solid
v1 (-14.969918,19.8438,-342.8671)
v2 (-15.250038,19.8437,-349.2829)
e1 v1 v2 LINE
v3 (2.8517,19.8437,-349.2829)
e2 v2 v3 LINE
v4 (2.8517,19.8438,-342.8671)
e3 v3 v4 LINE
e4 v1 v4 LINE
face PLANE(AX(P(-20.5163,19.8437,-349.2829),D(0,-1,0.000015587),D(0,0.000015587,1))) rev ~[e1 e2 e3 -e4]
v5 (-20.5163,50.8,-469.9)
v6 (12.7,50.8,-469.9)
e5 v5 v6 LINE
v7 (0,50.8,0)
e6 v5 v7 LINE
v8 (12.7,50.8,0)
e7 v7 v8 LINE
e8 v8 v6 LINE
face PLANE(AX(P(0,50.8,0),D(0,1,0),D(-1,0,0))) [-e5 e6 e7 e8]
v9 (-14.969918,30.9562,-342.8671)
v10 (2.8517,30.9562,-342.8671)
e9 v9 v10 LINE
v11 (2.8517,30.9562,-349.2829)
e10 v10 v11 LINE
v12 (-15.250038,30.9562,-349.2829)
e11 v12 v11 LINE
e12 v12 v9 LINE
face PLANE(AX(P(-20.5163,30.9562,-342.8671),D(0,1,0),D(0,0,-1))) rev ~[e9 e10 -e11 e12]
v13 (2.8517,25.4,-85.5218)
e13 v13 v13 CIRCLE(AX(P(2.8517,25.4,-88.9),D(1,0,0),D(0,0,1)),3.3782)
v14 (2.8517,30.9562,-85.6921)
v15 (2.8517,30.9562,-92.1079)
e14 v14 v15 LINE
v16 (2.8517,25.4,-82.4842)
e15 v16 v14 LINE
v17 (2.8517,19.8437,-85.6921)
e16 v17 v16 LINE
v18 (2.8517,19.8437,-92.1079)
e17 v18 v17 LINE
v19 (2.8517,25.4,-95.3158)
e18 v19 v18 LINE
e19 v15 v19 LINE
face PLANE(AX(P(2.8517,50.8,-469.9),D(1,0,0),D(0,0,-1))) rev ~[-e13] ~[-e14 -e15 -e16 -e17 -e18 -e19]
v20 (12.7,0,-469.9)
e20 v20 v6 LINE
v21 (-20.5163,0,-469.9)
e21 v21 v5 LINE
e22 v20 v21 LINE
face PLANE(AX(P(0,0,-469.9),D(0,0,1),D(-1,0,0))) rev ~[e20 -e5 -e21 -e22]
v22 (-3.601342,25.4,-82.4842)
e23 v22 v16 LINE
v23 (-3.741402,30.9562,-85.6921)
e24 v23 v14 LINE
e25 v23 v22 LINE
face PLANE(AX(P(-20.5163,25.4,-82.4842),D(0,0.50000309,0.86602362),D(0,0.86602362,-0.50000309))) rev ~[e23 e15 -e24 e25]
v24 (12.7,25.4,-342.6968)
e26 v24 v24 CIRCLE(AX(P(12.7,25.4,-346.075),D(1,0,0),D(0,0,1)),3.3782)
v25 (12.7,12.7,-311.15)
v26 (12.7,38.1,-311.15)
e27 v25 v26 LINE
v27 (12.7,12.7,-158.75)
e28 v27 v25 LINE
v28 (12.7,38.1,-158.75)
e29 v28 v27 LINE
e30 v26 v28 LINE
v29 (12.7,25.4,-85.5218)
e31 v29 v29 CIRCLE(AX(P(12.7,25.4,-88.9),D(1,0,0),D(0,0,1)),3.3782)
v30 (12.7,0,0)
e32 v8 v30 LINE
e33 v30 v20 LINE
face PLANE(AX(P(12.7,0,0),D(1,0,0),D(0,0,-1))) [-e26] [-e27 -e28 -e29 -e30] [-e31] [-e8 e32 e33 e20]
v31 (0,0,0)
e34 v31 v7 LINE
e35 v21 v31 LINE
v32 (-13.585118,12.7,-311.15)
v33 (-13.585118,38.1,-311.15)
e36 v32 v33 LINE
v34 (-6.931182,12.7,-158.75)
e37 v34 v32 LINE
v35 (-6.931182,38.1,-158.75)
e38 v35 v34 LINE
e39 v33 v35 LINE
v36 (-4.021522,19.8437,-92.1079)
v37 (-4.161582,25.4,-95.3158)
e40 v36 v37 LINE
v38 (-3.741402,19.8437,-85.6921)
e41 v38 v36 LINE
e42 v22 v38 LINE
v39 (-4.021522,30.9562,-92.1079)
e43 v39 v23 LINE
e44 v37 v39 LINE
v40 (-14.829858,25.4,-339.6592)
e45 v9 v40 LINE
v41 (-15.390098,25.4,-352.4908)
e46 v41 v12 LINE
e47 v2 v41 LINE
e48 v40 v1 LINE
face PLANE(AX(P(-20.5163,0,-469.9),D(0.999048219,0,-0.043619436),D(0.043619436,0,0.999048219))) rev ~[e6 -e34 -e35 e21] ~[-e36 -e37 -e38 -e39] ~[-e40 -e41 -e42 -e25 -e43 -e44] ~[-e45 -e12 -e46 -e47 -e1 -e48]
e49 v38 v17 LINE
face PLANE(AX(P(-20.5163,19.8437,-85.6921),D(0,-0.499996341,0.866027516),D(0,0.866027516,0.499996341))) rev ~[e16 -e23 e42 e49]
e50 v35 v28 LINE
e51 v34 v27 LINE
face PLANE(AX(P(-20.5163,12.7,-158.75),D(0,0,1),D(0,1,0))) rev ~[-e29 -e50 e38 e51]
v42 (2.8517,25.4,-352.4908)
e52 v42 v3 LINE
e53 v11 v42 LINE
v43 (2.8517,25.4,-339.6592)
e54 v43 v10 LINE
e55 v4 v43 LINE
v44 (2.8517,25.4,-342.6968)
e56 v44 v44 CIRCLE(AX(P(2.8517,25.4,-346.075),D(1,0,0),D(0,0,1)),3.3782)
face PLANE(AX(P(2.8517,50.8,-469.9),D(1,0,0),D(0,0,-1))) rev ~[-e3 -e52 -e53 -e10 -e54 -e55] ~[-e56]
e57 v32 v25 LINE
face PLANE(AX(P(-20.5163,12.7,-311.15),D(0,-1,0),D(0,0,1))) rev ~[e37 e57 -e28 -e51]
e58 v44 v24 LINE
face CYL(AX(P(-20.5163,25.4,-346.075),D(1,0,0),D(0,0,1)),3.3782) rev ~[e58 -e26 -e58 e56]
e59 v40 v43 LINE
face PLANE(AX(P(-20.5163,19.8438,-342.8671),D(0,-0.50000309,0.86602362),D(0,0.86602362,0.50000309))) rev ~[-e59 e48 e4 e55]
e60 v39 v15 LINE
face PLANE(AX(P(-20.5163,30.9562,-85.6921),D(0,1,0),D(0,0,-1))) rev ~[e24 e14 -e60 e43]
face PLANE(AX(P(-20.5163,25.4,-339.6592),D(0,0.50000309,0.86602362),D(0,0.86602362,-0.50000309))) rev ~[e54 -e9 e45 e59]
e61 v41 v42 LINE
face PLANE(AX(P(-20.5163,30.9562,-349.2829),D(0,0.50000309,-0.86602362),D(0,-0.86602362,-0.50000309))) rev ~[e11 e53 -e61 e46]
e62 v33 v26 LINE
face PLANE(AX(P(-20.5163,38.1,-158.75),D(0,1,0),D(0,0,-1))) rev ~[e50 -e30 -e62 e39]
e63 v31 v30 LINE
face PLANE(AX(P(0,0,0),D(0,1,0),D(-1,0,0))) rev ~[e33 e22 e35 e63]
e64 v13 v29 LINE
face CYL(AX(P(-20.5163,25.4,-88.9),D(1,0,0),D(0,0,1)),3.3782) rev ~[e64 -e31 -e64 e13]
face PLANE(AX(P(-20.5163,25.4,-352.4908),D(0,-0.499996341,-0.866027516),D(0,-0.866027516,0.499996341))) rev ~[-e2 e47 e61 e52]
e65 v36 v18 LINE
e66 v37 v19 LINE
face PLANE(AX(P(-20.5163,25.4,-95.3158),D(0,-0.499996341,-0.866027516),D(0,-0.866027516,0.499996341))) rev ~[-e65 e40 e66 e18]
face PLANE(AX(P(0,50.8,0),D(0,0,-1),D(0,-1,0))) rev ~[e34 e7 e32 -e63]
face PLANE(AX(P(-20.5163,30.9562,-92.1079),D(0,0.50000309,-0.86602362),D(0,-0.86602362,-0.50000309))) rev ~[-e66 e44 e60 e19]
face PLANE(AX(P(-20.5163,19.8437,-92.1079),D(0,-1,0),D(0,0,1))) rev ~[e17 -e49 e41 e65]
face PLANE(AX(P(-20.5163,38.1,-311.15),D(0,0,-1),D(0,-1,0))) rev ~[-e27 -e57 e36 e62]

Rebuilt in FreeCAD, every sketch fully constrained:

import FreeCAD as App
import Part
import Sketcher
from FreeCAD import Vector
Q = App.Units.Quantity


def add_polygon(sketch, points):
    """Adds a closed chain of lines whose ends are joined by coincident constraints."""
    first, n = sketch.GeometryCount, len(points)
    for a, b in zip(points, points[1:] + points[:1]):
        sketch.addGeometry(Part.LineSegment(App.Vector(*a, 0), App.Vector(*b, 0)), False)
    for i in range(n):
        sketch.addConstraint(Sketcher.Constraint("Coincident", first + i, 2, first + (i + 1) % n, 1))

doc = App.newDocument("Part")
body = doc.addObject("PartDesign::Body", "Body")

# Sketch on XZ plane
sketch1 = body.newObject("Sketcher::SketchObject", "Sketch")
sketch1.AttachmentSupport = (doc.getObject("XZ_Plane"), [""])
sketch1.MapMode = "FlatFace"
add_polygon(sketch1, [(-21, -470), (0, 0), (0, -470)])  # lines 0-2
sketch1.addConstraint([
    Sketcher.Constraint("Vertical", 1),
    Sketcher.Constraint("Horizontal", 2),
    Sketcher.Constraint("Coincident", 0, 2, -1, 1),
    Sketcher.Constraint("DistanceY", 1, 2, 1, 1, Q("18.5 in")),
    Sketcher.Constraint("Angle", 0, Q("87.5 deg")),
])
pad1 = body.newObject("PartDesign::Pad", "Pad")
pad1.Profile = sketch1
pad1.Length = Q("2 in")
pad1.Reversed = True

# Sketch on YZ plane
sketch2 = body.newObject("Sketcher::SketchObject", "Sketch001")
sketch2.AttachmentSupport = (doc.getObject("YZ_Plane"), [""])
sketch2.MapMode = "FlatFace"
add_polygon(sketch2, [(51, 0), (0, 0), (0, -470), (51, -470)])  # lines 0-3
sketch2.addConstraint([
    Sketcher.Constraint("Horizontal", 0),
    Sketcher.Constraint("Vertical", 1),
    Sketcher.Constraint("Horizontal", 2),
    Sketcher.Constraint("Vertical", 3),
    Sketcher.Constraint("Coincident", 0, 2, -1, 1),
    Sketcher.Constraint("DistanceX", 0, 2, 0, 1, Q("2 in")),
    Sketcher.Constraint("DistanceY", 1, 2, 1, 1, Q("18.5 in")),
])
pad2 = body.newObject("PartDesign::Pad", "Pad001")
pad2.Profile = sketch2
pad2.Length = Q("0.5 in")

# Sketch on YZ plane
sketch3 = body.newObject("Sketcher::SketchObject", "Sketch002")
sketch3.AttachmentSupport = (doc.getObject("YZ_Plane"), [""])
sketch3.MapMode = "FlatFace"
sketch3.AttachmentOffset = App.Placement(Vector(0, 0, -20.5163), App.Rotation())
sketch3.addGeometry([
    Part.Circle(Vector(25.4, -88.9, 0), Vector(0, 0, 1), 3.4),
    Part.Circle(Vector(25.4, -346.1, 0), Vector(0, 0, 1), 3.4),
], False)
sketch3.addConstraint([
    Sketcher.Constraint("Equal", 0, 1),
    Sketcher.Constraint("Vertical", 0, 3, 1, 3),
    Sketcher.Constraint("Diameter", 0, Q("0.266 in")),
    Sketcher.Constraint("DistanceX", -1, 1, 0, 3, Q("1 in")),
    Sketcher.Constraint("DistanceY", 0, 3, -1, 1, Q("3.5 in")),
    Sketcher.Constraint("DistanceY", 1, 3, -1, 1, Q("13.625 in")),
])
doc.recompute()
hole = body.newObject("PartDesign::Hole", "Hole")
hole.Profile = sketch3
hole.ThreadType = "None"
hole.Diameter = Q("0.266 in")
hole.DepthType = "ThroughAll"
hole.Reversed = True

# Sketch on YZ plane
sketch4 = body.newObject("Sketcher::SketchObject", "Sketch003")
sketch4.AttachmentSupport = (doc.getObject("YZ_Plane"), [""])
sketch4.MapMode = "FlatFace"
sketch4.AttachmentOffset = App.Placement(Vector(0, 0, -20.5163), App.Rotation())
add_polygon(sketch4, [(31, -342.9), (25.4, -339.7), (19.8, -342.9), (19.8, -349.3), (25.4, -352.5), (31, -349.3)])  # lines 0-5
sketch4.addGeometry(Part.Circle(Vector(25.4, -346.1, 0), Vector(0, 0, 1), 3.4), False)  # 6
add_polygon(sketch4, [(31, -85.7), (25.4, -82.5), (19.8, -85.7), (19.8, -92.1), (25.4, -95.3), (31, -92.1)])  # lines 7-12
sketch4.addGeometry(Part.Circle(Vector(25.4, -88.9, 0), Vector(0, 0, 1), 3.4), False)  # 13
sketch4.addConstraint([
    Sketcher.Constraint("Vertical", 2),
    Sketcher.Constraint("Vertical", 5),
    Sketcher.Constraint("Vertical", 9),
    Sketcher.Constraint("Vertical", 12),
    Sketcher.Constraint("Equal", 6, 13),
    Sketcher.Constraint("Parallel", 0, 3),
    Sketcher.Constraint("Parallel", 1, 4),
    Sketcher.Constraint("Parallel", 3, 7),
    Sketcher.Constraint("Parallel", 4, 8),
    Sketcher.Constraint("Parallel", 7, 10),
    Sketcher.Constraint("Parallel", 8, 11),
    Sketcher.Constraint("Horizontal", 2, 2, 4, 2),
    Sketcher.Constraint("Horizontal", 1, 2, 5, 2),
    Sketcher.Constraint("Horizontal", 9, 2, 11, 2),
    Sketcher.Constraint("Horizontal", 8, 2, 12, 2),
    Sketcher.Constraint("Vertical", 6, 3, 13, 3),
    Sketcher.Constraint("Vertical", 13, 3, 0, 2),
    Sketcher.Constraint("Vertical", 0, 2, 3, 2),
    Sketcher.Constraint("Vertical", 3, 2, 7, 2),
    Sketcher.Constraint("Vertical", 2, 2, 8, 2),
    Sketcher.Constraint("Equal", 5, 9),
    Sketcher.Constraint("Diameter", 6, Q("0.266 in")),
    Sketcher.Constraint("DistanceX", -1, 1, 6, 3, Q("1 in")),
    Sketcher.Constraint("Angle", 0, Q("149.9998 deg")),
    Sketcher.Constraint("DistanceX", 2, 2, 4, 2, Q("0.4375 in")),
    Sketcher.Constraint("DistanceY", 13, 3, -1, 1, Q("3.5 in")),
    Sketcher.Constraint("DistanceY", 2, 2, 2, 1, Q("0.2526 in")),
    Sketcher.Constraint("DistanceY", 6, 3, -1, 1, Q("13.625 in")),
    Sketcher.Constraint("DistanceY", 0, 2, 7, 2, Q("10.125 in")),
    Sketcher.Constraint("DistanceY", 0, 2, -1, 1, Q("13.3724 in")),
])
pocket1 = body.newObject("PartDesign::Pocket", "Pocket")
pocket1.Profile = sketch4
pocket1.Length = Q("0.92 in")
pocket1.Reversed = True

# Sketch on YZ plane
sketch5 = body.newObject("Sketcher::SketchObject", "Sketch004")
sketch5.AttachmentSupport = (doc.getObject("YZ_Plane"), [""])
sketch5.MapMode = "FlatFace"
sketch5.AttachmentOffset = App.Placement(Vector(0, 0, -20.5163), App.Rotation())
add_polygon(sketch5, [(13, -159), (13, -311), (38, -311), (38, -159)])  # lines 0-3
sketch5.addConstraint([
    Sketcher.Constraint("Vertical", 0),
    Sketcher.Constraint("Horizontal", 1),
    Sketcher.Constraint("Vertical", 2),
    Sketcher.Constraint("Horizontal", 3),
    Sketcher.Constraint("DistanceX", 1, 1, 1, 2, Q("1 in")),
    Sketcher.Constraint("DistanceY", 0, 2, 0, 1, Q("6 in")),
    Sketcher.Constraint("DistanceX", -1, 1, 0, 2, Q("0.5 in")),
    Sketcher.Constraint("DistanceY", 0, 2, -1, 1, Q("12.25 in")),
])
pocket2 = body.newObject("PartDesign::Pocket", "Pocket001")
pocket2.Profile = sketch5
pocket2.Type = "ThroughAll"
pocket2.Reversed = True

doc.recompute()
